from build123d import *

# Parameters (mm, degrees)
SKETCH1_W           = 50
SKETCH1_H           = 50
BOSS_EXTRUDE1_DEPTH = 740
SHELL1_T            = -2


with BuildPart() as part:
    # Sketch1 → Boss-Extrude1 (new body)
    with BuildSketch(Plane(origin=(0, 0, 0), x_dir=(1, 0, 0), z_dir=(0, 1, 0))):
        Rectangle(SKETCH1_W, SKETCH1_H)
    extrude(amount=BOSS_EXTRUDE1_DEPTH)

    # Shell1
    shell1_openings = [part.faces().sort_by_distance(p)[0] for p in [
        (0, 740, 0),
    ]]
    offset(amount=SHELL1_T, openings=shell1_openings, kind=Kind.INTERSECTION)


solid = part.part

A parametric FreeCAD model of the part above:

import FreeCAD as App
import Part
import Sketcher
from FreeCAD import Vector
Q = App.Units.Quantity


def faces_at(feature, points):
    """Names of the faces that lie closest to the given points."""
    faces = feature.Shape.Faces
    near = lambda p: min(range(len(faces)), key=lambda i: faces[i].distToShape(Part.Vertex(*p))[0])
    return sorted({f"Face{near(p) + 1}" for p in points})


def add_polygon(sketch, points):
    """Adds a closed chain of lines whose ends are joined by coincident constraints."""
    first, n = sketch.GeometryCount, len(points)
    for a, b in zip(points, points[1:] + points[:1]):
        sketch.addGeometry(Part.LineSegment(App.Vector(*a, 0), App.Vector(*b, 0)), False)
    for i in range(n):
        sketch.addConstraint(Sketcher.Constraint("Coincident", first + i, 2, first + (i + 1) % n, 1))

doc = App.newDocument("Part")
params = doc.addObject("Spreadsheet::Sheet", "Params")
for row, (alias, value) in enumerate([
    ("sketch1_width", "50 mm"),
    ("pad1_length", "740 mm"),
    ("thickness_wall", "2 mm"),
], start=1):
    params.set(f"A{row}", alias)
    params.set(f"B{row}", "=" + value)
    params.setAlias(f"B{row}", alias)

body = doc.addObject("PartDesign::Body", "Body")

sketch1 = body.newObject("Sketcher::SketchObject", "Sketch")
sketch1.AttachmentSupport = (doc.getObject("XZ_Plane"), [""])
sketch1.MapMode = "FlatFace"
add_polygon(sketch1, [(-25, -25), (-25, 25), (25, 25), (25, -25)])
sketch1.addConstraint([
    Sketcher.Constraint("Vertical", 0),
    Sketcher.Constraint("Horizontal", 1),
    Sketcher.Constraint("Vertical", 2),
    Sketcher.Constraint("Horizontal", 3),
    Sketcher.Constraint("Symmetric", 0, 2, 2, 2, -1, 1),
    Sketcher.Constraint("Equal", 3, 0),
    Sketcher.Constraint("DistanceX", 1, 1, 1, 2, Q("50 mm")),
])
sketch1.setExpression("Constraints[10]", "Params.sketch1_width")
pad1 = body.newObject("PartDesign::Pad", "Pad")
pad1.Profile = sketch1
pad1.setExpression("Length", "Params.pad1_length")
pad1.Reversed = True
doc.recompute()

thickness = body.newObject("PartDesign::Thickness", "Thickness")
thickness.Base = (pad1, faces_at(pad1, [(0, 740, 0)]))
thickness.setExpression("Value", "Params.thickness_wall")
thickness.Reversed = True
thickness.Join = "Intersection"

doc.recompute()
